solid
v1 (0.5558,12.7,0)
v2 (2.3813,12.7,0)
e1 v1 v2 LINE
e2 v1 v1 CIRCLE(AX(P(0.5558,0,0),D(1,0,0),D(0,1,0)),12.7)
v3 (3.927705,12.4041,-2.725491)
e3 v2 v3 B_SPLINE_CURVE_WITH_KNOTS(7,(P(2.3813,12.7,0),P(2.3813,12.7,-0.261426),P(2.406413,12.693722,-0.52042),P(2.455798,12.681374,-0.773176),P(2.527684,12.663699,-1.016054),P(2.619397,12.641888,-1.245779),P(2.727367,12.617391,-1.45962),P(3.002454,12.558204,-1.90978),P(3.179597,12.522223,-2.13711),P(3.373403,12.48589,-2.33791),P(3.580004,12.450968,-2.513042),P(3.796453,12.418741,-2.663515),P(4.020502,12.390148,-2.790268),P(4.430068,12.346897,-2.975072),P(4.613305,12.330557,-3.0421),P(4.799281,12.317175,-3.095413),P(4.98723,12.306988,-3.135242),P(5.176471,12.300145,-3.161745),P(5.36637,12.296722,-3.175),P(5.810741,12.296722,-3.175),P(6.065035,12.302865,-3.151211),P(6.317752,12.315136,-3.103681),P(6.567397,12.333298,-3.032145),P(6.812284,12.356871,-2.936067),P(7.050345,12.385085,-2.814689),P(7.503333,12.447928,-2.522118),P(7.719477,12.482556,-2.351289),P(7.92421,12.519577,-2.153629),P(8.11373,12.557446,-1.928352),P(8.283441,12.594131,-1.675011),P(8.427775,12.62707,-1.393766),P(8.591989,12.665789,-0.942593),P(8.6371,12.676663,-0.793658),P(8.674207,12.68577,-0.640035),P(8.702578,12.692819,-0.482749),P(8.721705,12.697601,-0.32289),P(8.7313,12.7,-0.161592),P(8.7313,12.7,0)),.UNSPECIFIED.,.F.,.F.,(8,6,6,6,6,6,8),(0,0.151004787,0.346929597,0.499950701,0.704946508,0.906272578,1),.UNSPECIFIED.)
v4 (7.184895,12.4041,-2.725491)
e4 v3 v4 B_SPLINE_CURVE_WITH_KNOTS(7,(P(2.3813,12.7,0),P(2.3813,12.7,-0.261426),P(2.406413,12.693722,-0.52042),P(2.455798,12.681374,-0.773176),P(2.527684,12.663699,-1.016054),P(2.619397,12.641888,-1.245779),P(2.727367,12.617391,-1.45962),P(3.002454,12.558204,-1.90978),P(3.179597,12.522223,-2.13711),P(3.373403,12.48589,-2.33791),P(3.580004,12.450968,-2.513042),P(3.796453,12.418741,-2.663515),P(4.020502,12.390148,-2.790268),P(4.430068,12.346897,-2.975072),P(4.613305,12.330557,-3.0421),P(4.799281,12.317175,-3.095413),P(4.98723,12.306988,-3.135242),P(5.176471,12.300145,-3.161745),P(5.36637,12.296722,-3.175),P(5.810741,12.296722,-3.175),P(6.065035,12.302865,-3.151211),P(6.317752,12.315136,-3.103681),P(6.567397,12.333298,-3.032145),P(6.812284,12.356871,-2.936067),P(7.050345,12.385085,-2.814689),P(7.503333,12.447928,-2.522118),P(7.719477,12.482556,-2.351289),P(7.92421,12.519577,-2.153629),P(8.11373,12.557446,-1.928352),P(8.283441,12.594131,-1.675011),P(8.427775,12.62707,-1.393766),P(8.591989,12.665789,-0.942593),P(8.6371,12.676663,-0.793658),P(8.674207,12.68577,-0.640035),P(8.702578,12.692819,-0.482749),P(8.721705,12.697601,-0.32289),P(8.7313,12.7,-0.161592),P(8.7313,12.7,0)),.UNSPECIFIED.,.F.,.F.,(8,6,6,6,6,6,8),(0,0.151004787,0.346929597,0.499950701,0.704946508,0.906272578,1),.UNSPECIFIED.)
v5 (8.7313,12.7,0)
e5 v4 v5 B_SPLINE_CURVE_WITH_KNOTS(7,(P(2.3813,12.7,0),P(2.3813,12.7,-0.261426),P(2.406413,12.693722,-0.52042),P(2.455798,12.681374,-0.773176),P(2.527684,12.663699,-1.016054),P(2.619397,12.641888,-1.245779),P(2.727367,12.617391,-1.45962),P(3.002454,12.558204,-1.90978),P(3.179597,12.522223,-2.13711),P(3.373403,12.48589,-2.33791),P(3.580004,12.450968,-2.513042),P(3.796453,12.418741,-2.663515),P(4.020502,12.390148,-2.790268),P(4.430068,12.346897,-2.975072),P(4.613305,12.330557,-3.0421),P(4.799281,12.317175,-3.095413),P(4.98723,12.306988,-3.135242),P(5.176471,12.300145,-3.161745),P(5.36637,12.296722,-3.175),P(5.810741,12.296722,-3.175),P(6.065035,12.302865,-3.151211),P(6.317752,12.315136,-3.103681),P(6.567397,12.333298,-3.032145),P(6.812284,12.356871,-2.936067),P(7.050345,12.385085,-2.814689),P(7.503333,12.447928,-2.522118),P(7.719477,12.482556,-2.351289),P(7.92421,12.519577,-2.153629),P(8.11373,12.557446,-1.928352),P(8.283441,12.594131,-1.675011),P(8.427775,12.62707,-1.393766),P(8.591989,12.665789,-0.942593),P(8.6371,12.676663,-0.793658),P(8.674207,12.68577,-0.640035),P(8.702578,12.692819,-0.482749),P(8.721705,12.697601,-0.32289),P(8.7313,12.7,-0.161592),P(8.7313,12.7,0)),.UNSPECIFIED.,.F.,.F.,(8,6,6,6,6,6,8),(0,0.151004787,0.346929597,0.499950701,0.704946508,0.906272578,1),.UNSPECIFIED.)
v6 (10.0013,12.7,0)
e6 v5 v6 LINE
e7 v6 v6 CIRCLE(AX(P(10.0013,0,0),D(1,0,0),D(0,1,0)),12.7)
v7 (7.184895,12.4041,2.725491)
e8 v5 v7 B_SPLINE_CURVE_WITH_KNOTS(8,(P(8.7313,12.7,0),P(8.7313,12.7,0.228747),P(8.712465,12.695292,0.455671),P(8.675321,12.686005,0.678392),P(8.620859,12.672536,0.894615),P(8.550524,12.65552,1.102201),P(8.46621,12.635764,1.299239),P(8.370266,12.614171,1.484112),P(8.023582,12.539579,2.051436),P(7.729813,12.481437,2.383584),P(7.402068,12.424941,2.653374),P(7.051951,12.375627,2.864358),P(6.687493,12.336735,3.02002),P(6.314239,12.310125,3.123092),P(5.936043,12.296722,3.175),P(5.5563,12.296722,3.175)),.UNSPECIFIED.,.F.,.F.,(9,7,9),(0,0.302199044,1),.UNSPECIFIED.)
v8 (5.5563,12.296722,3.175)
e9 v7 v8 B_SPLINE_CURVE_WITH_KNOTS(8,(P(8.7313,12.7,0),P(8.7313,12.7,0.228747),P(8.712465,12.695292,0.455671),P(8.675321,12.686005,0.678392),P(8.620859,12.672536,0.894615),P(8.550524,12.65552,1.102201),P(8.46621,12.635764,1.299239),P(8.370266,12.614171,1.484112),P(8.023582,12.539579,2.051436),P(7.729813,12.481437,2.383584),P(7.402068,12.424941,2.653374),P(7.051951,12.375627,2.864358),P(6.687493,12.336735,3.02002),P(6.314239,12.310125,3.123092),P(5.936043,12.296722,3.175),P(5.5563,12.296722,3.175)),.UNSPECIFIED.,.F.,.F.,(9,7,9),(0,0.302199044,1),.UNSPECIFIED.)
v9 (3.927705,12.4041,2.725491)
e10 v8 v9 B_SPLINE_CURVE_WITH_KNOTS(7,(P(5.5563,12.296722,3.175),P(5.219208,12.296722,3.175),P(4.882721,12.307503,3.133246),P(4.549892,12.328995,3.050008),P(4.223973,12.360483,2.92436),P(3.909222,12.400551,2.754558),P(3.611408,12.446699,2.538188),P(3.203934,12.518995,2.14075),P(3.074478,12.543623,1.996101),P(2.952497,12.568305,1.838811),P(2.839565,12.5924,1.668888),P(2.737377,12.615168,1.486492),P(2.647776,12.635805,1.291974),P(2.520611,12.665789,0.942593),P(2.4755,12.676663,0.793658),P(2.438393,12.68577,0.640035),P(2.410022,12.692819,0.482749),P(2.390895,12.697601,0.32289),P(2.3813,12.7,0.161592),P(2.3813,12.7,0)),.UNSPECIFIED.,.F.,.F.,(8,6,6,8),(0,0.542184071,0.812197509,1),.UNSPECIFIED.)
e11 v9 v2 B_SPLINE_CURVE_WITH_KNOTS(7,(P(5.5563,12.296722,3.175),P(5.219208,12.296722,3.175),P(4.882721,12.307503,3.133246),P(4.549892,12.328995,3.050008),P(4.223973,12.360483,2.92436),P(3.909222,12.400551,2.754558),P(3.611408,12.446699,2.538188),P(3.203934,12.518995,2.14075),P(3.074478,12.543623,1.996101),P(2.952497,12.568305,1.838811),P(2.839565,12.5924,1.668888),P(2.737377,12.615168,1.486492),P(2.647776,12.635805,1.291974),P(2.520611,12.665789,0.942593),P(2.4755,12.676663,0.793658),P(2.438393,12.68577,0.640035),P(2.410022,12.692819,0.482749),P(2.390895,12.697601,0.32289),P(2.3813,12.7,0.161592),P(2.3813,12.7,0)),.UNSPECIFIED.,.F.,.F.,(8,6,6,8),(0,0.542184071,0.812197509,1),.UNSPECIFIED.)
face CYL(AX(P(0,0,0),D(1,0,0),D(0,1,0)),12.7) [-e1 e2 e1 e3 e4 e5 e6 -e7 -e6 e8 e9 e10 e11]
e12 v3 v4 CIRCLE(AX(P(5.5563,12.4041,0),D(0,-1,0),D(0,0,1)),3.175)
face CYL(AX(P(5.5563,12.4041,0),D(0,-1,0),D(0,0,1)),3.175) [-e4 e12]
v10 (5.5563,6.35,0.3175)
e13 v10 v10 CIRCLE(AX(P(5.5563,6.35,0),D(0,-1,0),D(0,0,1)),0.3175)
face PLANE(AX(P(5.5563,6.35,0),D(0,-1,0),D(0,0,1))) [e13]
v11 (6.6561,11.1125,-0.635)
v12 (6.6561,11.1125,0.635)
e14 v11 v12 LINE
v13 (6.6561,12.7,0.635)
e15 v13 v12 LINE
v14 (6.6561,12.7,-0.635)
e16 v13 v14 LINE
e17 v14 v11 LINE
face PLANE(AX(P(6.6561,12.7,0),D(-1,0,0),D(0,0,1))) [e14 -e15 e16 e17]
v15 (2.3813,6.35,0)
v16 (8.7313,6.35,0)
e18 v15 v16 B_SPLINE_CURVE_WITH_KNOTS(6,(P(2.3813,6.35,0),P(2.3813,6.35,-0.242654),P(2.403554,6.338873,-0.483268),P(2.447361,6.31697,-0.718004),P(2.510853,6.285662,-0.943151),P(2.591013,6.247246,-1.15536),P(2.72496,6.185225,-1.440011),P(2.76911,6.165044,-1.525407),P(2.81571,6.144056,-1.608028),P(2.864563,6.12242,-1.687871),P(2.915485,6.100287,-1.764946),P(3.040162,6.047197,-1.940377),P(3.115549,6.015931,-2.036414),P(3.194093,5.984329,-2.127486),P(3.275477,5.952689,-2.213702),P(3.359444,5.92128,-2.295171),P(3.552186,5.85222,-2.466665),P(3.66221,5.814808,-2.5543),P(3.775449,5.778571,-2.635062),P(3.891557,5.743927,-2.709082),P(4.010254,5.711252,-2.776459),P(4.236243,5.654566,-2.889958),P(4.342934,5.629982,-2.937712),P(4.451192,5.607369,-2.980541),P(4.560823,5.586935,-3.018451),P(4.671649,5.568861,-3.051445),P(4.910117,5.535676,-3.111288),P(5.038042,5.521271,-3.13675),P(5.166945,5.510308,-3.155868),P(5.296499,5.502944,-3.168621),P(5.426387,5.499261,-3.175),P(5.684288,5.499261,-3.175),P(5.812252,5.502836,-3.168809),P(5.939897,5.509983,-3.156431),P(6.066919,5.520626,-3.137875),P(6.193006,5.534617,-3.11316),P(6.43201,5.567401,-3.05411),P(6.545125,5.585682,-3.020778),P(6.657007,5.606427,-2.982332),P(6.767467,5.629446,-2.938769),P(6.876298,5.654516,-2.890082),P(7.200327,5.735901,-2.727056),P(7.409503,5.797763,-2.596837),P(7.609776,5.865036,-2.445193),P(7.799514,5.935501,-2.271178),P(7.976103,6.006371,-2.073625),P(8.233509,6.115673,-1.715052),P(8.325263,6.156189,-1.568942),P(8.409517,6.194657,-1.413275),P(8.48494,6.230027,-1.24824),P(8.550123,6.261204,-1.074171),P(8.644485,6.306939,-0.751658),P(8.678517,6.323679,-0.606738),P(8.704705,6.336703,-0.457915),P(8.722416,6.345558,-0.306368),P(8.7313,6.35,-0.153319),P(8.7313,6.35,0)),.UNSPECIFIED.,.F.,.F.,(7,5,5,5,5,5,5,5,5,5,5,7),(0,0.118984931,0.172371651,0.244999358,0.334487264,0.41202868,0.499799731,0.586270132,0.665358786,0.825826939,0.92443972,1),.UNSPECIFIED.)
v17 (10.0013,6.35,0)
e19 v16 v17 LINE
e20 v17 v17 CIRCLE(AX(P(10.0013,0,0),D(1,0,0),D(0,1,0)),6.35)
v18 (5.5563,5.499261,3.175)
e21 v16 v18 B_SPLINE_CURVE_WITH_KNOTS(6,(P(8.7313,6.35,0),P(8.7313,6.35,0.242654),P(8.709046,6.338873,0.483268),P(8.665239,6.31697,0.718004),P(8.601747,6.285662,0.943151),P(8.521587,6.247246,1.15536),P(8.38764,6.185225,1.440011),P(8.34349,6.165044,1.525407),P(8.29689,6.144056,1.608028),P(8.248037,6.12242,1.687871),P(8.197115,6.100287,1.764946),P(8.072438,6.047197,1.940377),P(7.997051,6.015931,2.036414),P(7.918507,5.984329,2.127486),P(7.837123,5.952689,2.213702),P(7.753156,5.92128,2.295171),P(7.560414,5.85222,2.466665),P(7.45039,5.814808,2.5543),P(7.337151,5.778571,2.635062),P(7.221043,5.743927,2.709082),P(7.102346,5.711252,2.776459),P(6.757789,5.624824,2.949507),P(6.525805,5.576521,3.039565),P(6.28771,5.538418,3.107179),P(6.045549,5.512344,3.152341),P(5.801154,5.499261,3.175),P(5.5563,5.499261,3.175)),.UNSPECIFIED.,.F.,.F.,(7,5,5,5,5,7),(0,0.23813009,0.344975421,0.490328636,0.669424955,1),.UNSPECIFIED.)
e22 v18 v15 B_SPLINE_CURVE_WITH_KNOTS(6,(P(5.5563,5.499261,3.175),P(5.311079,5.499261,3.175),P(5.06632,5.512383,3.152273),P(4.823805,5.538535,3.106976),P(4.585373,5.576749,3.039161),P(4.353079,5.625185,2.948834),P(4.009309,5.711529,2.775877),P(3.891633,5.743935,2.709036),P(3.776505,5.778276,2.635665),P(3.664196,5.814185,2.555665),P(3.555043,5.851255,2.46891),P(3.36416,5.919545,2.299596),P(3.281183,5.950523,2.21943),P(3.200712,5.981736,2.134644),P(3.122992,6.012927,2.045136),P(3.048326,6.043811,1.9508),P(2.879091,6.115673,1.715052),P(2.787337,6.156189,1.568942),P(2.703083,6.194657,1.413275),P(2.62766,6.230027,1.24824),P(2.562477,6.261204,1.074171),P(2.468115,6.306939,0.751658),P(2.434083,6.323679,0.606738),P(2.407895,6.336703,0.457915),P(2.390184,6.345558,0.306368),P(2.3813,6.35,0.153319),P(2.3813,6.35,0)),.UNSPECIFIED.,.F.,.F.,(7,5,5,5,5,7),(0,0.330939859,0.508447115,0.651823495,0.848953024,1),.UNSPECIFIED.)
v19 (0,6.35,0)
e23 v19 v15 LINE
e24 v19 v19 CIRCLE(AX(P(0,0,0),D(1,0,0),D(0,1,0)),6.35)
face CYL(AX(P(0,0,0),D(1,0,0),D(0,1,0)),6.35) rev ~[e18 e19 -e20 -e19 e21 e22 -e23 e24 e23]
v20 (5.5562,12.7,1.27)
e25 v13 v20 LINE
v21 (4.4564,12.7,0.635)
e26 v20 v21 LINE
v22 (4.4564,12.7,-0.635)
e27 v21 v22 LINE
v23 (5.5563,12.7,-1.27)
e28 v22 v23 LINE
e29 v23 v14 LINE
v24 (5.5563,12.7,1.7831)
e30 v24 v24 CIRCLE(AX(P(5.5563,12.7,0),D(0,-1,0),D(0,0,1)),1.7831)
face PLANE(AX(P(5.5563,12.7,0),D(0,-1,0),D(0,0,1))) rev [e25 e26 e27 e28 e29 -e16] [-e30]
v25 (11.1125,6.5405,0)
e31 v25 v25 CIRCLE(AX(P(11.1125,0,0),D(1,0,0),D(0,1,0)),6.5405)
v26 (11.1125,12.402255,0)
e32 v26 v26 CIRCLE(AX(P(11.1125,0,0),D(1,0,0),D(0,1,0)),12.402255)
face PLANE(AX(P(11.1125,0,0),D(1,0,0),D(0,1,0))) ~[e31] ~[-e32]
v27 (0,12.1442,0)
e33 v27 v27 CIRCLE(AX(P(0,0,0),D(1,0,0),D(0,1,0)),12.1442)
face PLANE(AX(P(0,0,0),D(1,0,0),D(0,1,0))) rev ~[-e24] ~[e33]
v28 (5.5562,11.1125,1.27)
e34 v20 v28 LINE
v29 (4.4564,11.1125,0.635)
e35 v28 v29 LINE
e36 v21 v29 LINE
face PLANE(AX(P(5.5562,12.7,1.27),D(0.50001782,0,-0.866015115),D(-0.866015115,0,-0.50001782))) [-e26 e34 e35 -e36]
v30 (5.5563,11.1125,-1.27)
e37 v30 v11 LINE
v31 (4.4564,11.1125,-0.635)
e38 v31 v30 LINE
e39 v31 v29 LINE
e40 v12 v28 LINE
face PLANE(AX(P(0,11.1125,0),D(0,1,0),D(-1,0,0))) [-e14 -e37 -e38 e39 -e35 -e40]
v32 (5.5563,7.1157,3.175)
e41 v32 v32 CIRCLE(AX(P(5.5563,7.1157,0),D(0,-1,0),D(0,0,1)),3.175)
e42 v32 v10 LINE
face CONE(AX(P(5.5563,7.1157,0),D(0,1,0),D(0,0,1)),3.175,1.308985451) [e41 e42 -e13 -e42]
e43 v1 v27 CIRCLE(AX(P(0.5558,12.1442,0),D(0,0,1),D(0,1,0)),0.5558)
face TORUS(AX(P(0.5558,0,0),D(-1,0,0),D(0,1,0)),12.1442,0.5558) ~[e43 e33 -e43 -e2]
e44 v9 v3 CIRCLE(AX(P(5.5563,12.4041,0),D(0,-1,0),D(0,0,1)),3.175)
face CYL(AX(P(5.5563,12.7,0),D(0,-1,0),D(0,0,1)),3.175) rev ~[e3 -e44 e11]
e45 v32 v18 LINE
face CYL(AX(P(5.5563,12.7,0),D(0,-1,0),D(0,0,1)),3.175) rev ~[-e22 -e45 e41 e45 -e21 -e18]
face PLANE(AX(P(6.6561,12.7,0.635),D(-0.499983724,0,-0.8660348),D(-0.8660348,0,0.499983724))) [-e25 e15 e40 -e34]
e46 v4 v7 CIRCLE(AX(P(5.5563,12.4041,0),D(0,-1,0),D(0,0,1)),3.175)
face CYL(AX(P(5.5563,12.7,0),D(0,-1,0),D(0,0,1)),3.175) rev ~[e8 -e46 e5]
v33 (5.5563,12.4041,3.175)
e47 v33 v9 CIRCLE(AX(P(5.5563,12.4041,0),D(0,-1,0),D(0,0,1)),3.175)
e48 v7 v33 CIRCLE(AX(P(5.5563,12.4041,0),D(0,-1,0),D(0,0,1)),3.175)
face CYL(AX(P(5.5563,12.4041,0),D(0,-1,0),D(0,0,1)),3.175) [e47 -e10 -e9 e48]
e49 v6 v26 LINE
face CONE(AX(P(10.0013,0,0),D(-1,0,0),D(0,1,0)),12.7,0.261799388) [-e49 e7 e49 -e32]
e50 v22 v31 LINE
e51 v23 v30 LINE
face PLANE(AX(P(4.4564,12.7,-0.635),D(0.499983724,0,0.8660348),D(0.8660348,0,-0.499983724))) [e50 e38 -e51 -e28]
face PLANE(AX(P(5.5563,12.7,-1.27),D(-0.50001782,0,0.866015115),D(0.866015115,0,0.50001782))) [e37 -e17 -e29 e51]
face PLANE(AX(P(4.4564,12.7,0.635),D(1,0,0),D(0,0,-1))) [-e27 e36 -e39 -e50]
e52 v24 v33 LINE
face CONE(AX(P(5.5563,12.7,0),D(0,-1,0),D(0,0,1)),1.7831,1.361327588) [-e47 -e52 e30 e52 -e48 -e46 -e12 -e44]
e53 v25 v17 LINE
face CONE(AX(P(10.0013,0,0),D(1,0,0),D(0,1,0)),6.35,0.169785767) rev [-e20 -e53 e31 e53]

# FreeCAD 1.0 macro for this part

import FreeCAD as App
import Part
import Sketcher
from FreeCAD import Vector
Q = App.Units.Quantity


def edges_at(feature, points):
    """Names of the edges that pass closest to the given points."""
    edges = feature.Shape.Edges
    near = lambda p: min(range(len(edges)), key=lambda i: edges[i].distToShape(Part.Vertex(*p))[0])
    return sorted({f"Edge{near(p) + 1}" for p in points})


def add_polygon(sketch, points):
    """Adds a closed chain of lines whose ends are joined by coincident constraints."""
    first, n = sketch.GeometryCount, len(points)
    for a, b in zip(points, points[1:] + points[:1]):
        sketch.addGeometry(Part.LineSegment(App.Vector(*a, 0), App.Vector(*b, 0)), False)
    for i in range(n):
        sketch.addConstraint(Sketcher.Constraint("Coincident", first + i, 2, first + (i + 1) % n, 1))

doc = App.newDocument("Part")
body = doc.addObject("PartDesign::Body", "Body")

# Sketch on XY plane
sketch1 = doc.addObject("Sketcher::SketchObject", "Sketch")
body.addObject(sketch1)
sketch1.AttachmentSupport = (doc.XY_Plane, [""])
sketch1.MapMode = "FlatFace"
add_polygon(sketch1, [(11.1125, 12.7), (0, 12.7), (0, 6.35), (11.1125, 6.35)])  # lines 0-3
sketch1.addConstraint([
    Sketcher.Constraint("Horizontal", 0),
    Sketcher.Constraint("Vertical", 1),
    Sketcher.Constraint("Horizontal", 2),
    Sketcher.Constraint("Vertical", 3),
    Sketcher.Constraint("PointOnObject", 0, 2, -2),
    Sketcher.Constraint("DistanceY", -1, 1, 0, 2, Q("0.5 in")),
    Sketcher.Constraint("DistanceX", 0, 2, 0, 1, Q("0.4375 in")),
    Sketcher.Constraint("DistanceY", 1, 2, 1, 1, Q("0.25 in")),
])
revolution = doc.addObject("PartDesign::Revolution", "Revolution")
body.addObject(revolution)
revolution.Profile = sketch1
revolution.ReferenceAxis = (sketch1, ["H_Axis"])
revolution.Angle = 360

# Sketch on XZ plane
sketch2 = doc.addObject("Sketcher::SketchObject", "Sketch001")
body.addObject(sketch2)
sketch2.AttachmentSupport = (doc.XZ_Plane, [""])
sketch2.MapMode = "FlatFace"
sketch2.AttachmentOffset = App.Placement(Vector(0, 0, -0.5 * 25.4), App.Rotation())
sketch2.addGeometry(Part.Circle(Vector(5.5563, 0, 0), Vector(0, 0, 1), 3.175), False)
sketch2.addConstraint([
    Sketcher.Constraint("PointOnObject", 0, 3, -1),
    Sketcher.Constraint("Diameter", 0, Q("0.25 in")),
    Sketcher.Constraint("DistanceX", -1, 1, 0, 3, Q("0.218752 in")),
])
doc.recompute()
hole = doc.addObject("PartDesign::Hole", "Hole")
body.addObject(hole)
hole.Profile = sketch2
hole.ThreadType = "None"
hole.Diameter = Q("0.25 in")
hole.DepthType = "Dimension"
hole.Depth = Q("0.5 in")
hole.DrillPoint = "Angled"
hole.DrillPointAngle = 118
hole.Reversed = True

# Sketch on YZ plane
sketch3 = doc.addObject("Sketcher::SketchObject", "Sketch002")
body.addObject(sketch3)
sketch3.AttachmentSupport = (doc.YZ_Plane, [""])
sketch3.MapMode = "FlatFace"
sketch3.AttachmentOffset = App.Placement(Vector(0, 0, 0.218752 * 25.4), App.Rotation())
add_polygon(sketch3, [(7.1157, 3.175), (12.4041, 3.175), (12.7, 1.7831), (12.7, 0), (6.35, 0), (6.35, 0.3175)])  # lines 0-5
sketch3.addConstraint([
    Sketcher.Constraint("Horizontal", 0),
    Sketcher.Constraint("Vertical", 2),
    Sketcher.Constraint("Horizontal", 3),
    Sketcher.Constraint("Vertical", 4),
    Sketcher.Constraint("PointOnObject", 2, 2, -1),
    Sketcher.Constraint("DistanceX", 3, 2, 3, 1, Q("0.25 in")),
    Sketcher.Constraint("DistanceX", -1, 1, 3, 2, Q("0.25 in")),
    Sketcher.Constraint("Angle", 5, Q("74.9993 deg")),
    Sketcher.Constraint("DistanceX", 0, 1, 0, 2, Q("0.2082 in")),
    Sketcher.Constraint("DistanceY", 2, 2, 2, 1, Q("0.0702 in")),
    Sketcher.Constraint("DistanceY", 4, 1, 4, 2, Q("0.0125 in")),
    Sketcher.Constraint("DistanceY", -1, 1, 0, 2, Q("0.125 in")),
])
revolution2 = doc.addObject("PartDesign::Revolution", "Revolution001")
body.addObject(revolution2)
revolution2.Profile = sketch3
revolution2.ReferenceAxis = (sketch3, ["H_Axis"])
revolution2.Angle = 360

# Sketch on XZ plane
sketch4 = doc.addObject("Sketcher::SketchObject", "Sketch003")
body.addObject(sketch4)
sketch4.AttachmentSupport = (doc.XZ_Plane, [""])
sketch4.MapMode = "FlatFace"
sketch4.AttachmentOffset = App.Placement(Vector(0, 0, -0.5 * 25.4), App.Rotation())
add_polygon(sketch4, [(4.4564, 0.635), (5.5562, 1.27), (6.6561, 0.635), (6.6561, -0.635), (5.5563, -1.27), (4.4564, -0.635)])  # lines 0-5
sketch4.addConstraint([
    Sketcher.Constraint("Vertical", 2),
    Sketcher.Constraint("Vertical", 5),
    Sketcher.Constraint("Symmetric", 0, 2, 3, 2, -1),
    Sketcher.Constraint("Parallel", 0, 3),
    Sketcher.Constraint("Parallel", 1, 4),
    Sketcher.Constraint("Horizontal", 2, 2, 4, 2),
    Sketcher.Constraint("Horizontal", 1, 2, 5, 2),
    Sketcher.Constraint("DistanceY", 3, 2, 0, 2, Q("0.1 in")),
    Sketcher.Constraint("DistanceX", -1, 1, 0, 2, Q("0.218748 in")),
    Sketcher.Constraint("Angle", 0, Q("30.0012 deg")),
    Sketcher.Constraint("DistanceY", 2, 2, 2, 1, Q("0.05 in")),
])
pocket1 = doc.addObject("PartDesign::Pocket", "Pocket")
body.addObject(pocket1)
pocket1.Profile = sketch4
pocket1.Length = Q("0.0625 in")
pocket1.Reversed = True
doc.recompute()

chamfer = doc.addObject("PartDesign::Chamfer", "Chamfer")
body.addObject(chamfer)
chamfer.Base = (pocket1, edges_at(pocket1, [(11.113, -12.7, 0)]))
chamfer.ChamferType = "Distance and Angle"
chamfer.Size = 1.1112
chamfer.Angle = 15
doc.recompute()

chamfer2 = doc.addObject("PartDesign::Chamfer", "Chamfer001")
body.addObject(chamfer2)
chamfer2.Base = (chamfer, edges_at(chamfer, [(11.113, -6.35, 0)]))
chamfer2.ChamferType = "Two distances"
chamfer2.Size = Q("0.0075 in")
chamfer2.Size2 = 1.1112
doc.recompute()

fillet = doc.addObject("PartDesign::Fillet", "Fillet")
body.addObject(fillet)
fillet.Base = (chamfer2, edges_at(chamfer2, [(0, -12.7, 0)]))
fillet.Radius = 0.5558

doc.recompute()
